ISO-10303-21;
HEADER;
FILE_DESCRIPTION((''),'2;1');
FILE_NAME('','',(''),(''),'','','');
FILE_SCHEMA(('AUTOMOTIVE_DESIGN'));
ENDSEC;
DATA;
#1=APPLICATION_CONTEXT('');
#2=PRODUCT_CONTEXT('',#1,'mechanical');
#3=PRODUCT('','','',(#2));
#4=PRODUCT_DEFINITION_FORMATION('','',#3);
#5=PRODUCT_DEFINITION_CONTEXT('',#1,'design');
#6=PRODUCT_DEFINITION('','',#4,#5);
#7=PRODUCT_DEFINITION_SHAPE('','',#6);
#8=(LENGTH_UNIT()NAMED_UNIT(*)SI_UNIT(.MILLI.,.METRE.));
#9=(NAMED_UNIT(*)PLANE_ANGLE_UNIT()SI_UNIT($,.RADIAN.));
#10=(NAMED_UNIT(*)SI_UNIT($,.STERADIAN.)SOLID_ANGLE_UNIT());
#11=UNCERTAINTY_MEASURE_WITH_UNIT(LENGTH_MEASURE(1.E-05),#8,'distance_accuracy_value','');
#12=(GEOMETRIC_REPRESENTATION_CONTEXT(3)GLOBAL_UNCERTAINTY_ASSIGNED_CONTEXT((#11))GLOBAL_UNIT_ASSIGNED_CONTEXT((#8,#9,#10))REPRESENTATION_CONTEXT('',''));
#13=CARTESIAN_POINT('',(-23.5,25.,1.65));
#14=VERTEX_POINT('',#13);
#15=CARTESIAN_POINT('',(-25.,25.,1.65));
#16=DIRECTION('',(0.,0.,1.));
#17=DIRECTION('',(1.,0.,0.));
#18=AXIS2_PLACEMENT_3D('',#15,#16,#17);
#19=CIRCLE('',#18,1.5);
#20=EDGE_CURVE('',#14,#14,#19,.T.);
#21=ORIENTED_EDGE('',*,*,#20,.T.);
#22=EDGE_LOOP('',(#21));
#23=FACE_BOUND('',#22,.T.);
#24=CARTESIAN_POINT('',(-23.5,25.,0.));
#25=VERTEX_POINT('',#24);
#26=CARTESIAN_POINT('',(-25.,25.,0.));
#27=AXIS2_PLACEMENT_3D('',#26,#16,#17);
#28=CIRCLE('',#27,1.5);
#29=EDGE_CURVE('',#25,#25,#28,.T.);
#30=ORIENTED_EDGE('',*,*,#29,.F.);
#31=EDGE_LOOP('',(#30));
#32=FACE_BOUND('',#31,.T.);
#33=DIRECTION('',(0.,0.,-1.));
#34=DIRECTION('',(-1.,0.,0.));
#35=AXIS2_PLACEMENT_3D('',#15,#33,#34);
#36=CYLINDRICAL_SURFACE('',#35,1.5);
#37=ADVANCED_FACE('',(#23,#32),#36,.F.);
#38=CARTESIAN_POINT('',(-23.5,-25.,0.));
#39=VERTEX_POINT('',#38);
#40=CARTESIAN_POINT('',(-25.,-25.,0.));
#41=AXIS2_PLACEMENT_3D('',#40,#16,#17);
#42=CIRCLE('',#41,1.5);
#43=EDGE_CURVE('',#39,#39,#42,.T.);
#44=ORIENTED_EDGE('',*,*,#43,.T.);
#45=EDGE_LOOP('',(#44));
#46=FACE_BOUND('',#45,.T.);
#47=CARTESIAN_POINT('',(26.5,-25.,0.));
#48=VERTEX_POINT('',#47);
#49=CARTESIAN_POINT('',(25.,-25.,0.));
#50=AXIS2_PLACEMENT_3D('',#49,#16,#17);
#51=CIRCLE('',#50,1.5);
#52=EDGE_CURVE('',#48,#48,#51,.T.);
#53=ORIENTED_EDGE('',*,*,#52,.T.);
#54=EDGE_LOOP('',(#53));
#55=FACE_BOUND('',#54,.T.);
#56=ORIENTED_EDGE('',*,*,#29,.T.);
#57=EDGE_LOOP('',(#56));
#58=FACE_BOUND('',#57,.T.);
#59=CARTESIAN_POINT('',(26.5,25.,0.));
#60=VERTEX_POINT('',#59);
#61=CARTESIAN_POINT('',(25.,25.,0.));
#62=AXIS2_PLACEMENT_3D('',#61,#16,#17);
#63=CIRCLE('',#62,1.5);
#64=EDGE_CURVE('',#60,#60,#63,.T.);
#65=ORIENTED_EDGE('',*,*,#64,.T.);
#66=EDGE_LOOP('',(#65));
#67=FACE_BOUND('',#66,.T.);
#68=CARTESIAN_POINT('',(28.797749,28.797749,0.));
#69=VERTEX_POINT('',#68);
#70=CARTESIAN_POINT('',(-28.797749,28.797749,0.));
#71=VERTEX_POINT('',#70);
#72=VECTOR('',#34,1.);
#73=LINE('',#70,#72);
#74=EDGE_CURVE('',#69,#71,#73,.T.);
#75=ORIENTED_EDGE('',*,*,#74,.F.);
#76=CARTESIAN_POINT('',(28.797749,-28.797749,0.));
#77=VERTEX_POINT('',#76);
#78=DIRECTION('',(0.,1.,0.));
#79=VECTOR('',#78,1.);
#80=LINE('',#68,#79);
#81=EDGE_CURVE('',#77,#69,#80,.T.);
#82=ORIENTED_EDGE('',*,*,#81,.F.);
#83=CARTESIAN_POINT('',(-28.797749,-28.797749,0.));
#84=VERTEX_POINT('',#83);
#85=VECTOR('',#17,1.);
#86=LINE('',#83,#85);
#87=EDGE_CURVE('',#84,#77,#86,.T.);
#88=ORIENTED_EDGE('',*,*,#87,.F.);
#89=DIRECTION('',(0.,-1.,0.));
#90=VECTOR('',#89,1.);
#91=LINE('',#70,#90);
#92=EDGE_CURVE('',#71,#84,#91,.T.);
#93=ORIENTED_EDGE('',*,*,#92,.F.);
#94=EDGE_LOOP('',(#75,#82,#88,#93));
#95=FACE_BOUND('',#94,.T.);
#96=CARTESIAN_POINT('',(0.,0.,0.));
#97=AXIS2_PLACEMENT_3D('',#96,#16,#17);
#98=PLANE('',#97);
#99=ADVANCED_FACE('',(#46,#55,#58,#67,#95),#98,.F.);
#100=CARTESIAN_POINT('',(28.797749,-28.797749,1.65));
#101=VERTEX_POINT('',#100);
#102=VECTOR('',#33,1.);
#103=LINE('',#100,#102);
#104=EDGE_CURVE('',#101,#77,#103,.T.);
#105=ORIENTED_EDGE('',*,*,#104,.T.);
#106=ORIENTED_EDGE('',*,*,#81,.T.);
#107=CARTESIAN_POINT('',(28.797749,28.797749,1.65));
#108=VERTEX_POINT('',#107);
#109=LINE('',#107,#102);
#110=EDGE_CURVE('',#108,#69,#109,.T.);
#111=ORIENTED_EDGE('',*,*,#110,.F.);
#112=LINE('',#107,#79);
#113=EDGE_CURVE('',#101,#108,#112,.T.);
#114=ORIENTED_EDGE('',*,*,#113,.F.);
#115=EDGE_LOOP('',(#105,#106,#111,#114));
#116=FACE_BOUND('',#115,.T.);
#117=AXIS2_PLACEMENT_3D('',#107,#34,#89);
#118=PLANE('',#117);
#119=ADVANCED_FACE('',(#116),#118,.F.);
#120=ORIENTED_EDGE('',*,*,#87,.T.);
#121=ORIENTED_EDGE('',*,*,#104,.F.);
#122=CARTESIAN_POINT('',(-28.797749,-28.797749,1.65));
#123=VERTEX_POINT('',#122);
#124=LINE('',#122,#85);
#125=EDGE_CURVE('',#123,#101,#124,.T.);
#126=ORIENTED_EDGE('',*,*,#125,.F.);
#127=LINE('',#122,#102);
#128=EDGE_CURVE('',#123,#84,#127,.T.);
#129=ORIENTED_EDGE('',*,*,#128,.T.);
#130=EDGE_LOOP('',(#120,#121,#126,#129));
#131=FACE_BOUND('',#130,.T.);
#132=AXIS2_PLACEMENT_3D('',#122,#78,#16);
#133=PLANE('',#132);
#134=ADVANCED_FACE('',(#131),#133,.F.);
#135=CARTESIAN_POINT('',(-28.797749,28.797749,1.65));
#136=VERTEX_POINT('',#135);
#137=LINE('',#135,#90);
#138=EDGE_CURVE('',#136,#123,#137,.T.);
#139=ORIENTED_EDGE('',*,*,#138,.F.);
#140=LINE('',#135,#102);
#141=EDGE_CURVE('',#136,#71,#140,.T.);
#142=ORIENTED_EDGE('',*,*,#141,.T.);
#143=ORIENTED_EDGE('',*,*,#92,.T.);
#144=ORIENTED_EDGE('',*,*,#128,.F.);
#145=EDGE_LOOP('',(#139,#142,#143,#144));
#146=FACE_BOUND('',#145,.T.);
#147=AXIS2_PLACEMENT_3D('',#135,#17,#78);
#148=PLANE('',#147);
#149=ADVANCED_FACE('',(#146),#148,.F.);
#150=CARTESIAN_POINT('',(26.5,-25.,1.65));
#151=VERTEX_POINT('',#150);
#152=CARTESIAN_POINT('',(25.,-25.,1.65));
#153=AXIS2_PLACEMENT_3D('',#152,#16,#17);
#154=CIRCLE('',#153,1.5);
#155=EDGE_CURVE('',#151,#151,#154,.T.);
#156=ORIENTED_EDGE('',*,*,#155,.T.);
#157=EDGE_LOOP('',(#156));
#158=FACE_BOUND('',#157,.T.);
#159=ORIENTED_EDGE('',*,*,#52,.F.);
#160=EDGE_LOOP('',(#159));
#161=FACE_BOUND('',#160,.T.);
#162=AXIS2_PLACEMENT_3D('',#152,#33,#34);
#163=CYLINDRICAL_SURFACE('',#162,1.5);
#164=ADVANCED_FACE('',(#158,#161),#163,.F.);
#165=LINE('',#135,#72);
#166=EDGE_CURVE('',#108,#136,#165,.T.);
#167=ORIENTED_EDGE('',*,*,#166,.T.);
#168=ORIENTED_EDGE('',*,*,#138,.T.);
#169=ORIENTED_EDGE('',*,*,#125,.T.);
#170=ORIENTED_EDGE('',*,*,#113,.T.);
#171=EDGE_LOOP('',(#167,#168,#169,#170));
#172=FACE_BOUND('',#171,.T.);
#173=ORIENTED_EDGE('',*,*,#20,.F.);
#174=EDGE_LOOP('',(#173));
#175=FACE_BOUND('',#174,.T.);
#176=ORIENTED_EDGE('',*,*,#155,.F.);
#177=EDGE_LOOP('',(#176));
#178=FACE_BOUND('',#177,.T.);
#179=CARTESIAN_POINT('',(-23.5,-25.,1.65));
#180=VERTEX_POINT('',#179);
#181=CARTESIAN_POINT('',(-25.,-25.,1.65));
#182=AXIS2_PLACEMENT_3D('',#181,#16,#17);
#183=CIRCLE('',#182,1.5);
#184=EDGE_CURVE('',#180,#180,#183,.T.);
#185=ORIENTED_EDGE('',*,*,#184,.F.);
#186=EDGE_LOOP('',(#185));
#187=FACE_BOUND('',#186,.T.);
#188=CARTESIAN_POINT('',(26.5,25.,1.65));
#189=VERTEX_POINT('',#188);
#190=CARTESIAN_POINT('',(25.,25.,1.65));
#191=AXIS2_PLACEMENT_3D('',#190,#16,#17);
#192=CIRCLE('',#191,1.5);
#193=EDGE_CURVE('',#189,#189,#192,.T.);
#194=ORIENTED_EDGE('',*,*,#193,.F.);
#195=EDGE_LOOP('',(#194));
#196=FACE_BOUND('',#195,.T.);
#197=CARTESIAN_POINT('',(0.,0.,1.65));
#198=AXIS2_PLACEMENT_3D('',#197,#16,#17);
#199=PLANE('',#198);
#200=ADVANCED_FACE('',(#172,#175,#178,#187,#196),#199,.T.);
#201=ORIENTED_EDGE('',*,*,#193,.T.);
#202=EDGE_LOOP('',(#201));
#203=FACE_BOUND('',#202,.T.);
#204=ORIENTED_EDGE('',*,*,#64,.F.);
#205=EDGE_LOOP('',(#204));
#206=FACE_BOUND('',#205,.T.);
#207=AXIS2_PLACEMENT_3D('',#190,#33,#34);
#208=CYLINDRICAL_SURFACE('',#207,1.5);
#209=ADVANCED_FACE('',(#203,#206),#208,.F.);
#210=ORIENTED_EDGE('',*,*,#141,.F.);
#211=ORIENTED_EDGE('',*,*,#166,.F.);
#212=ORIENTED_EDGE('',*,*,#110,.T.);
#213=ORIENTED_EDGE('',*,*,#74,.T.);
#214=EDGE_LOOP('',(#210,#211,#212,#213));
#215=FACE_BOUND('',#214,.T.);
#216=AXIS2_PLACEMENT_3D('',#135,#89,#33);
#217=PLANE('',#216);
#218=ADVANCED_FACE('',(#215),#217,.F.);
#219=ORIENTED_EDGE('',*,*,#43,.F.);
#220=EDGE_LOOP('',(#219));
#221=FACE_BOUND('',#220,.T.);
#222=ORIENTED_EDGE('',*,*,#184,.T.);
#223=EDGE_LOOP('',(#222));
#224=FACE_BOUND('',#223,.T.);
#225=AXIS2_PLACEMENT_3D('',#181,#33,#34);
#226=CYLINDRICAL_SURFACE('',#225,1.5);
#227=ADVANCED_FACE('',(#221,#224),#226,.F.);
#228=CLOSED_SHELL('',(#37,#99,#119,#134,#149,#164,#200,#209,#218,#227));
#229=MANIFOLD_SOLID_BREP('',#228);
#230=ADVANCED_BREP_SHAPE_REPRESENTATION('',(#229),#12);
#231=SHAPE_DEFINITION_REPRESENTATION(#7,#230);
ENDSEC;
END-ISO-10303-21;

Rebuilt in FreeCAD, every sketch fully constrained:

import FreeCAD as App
import Part
import Sketcher

doc = App.newDocument("Part")
body = doc.addObject("PartDesign::Body", "Body")

# Sketch on XY plane
sketch1 = body.newObject("Sketcher::SketchObject", "Sketch")
sketch1.AttachmentSupport = (doc.getObject("XY_Plane"), [""])
sketch1.MapMode = "FlatFace"
sketch1.addGeometry(Part.LineSegment(App.Vector(-28.797749, 28.797749, 0), App.Vector(-28.797749, -28.797749, 0)), False)
sketch1.addGeometry(Part.LineSegment(App.Vector(-28.797749, -28.797749, 0), App.Vector(28.797749, -28.797749, 0)), False)
sketch1.addGeometry(Part.LineSegment(App.Vector(28.797749, -28.797749, 0), App.Vector(28.797749, 28.797749, 0)), False)
sketch1.addGeometry(Part.LineSegment(App.Vector(28.797749, 28.797749, 0), App.Vector(-28.797749, 28.797749, 0)), False)
sketch1.addGeometry(Part.Circle(App.Vector(-25, -25, 0), App.Vector(0, 0, 1), 1.5), False)
sketch1.addGeometry(Part.Circle(App.Vector(25, -25, 0), App.Vector(0, 0, 1), 1.5), False)
sketch1.addGeometry(Part.Circle(App.Vector(-25, 25, 0), App.Vector(0, 0, 1), 1.5), False)
sketch1.addGeometry(Part.Circle(App.Vector(25, 25, 0), App.Vector(0, 0, 1), 1.5), False)
sketch1.addConstraint(Sketcher.Constraint("Coincident", 0, 2, 1, 1))
sketch1.addConstraint(Sketcher.Constraint("Coincident", 1, 2, 2, 1))
sketch1.addConstraint(Sketcher.Constraint("Coincident", 2, 2, 3, 1))
sketch1.addConstraint(Sketcher.Constraint("Coincident", 3, 2, 0, 1))
sketch1.addConstraint(Sketcher.Constraint("Vertical", 0))
sketch1.addConstraint(Sketcher.Constraint("Horizontal", 1))
sketch1.addConstraint(Sketcher.Constraint("Vertical", 2))
sketch1.addConstraint(Sketcher.Constraint("Horizontal", 3))
sketch1.addConstraint(Sketcher.Constraint("Equal", 4, 5))
sketch1.addConstraint(Sketcher.Constraint("Equal", 5, 6))
sketch1.addConstraint(Sketcher.Constraint("Equal", 6, 7))
sketch1.addConstraint(Sketcher.Constraint("Symmetric", 5, 3, 6, 3, -1, 1))
sketch1.addConstraint(Sketcher.Constraint("Symmetric", 4, 3, 7, 3, -1, 1))
sketch1.addConstraint(Sketcher.Constraint("Symmetric", 0, 2, 2, 2, -1, 1))
sketch1.addConstraint(Sketcher.Constraint("Symmetric", 4, 3, 5, 3, -2))
sketch1.addConstraint(Sketcher.Constraint("Equal", 3, 0))
sketch1.addConstraint(Sketcher.Constraint("Diameter", 4, 3.0))
sketch1.addConstraint(Sketcher.Constraint("DistanceX", 4, 3, -1, 1, 25.0))
sketch1.addConstraint(Sketcher.Constraint("DistanceY", 4, 3, -1, 1, 25.0))
sketch1.addConstraint(Sketcher.Constraint("DistanceX", 1, 1, 1, 2, 57.595497))
pad1 = body.newObject("PartDesign::Pad", "Pad")
pad1.Profile = sketch1
pad1.Length = 1.65

doc.recompute()
